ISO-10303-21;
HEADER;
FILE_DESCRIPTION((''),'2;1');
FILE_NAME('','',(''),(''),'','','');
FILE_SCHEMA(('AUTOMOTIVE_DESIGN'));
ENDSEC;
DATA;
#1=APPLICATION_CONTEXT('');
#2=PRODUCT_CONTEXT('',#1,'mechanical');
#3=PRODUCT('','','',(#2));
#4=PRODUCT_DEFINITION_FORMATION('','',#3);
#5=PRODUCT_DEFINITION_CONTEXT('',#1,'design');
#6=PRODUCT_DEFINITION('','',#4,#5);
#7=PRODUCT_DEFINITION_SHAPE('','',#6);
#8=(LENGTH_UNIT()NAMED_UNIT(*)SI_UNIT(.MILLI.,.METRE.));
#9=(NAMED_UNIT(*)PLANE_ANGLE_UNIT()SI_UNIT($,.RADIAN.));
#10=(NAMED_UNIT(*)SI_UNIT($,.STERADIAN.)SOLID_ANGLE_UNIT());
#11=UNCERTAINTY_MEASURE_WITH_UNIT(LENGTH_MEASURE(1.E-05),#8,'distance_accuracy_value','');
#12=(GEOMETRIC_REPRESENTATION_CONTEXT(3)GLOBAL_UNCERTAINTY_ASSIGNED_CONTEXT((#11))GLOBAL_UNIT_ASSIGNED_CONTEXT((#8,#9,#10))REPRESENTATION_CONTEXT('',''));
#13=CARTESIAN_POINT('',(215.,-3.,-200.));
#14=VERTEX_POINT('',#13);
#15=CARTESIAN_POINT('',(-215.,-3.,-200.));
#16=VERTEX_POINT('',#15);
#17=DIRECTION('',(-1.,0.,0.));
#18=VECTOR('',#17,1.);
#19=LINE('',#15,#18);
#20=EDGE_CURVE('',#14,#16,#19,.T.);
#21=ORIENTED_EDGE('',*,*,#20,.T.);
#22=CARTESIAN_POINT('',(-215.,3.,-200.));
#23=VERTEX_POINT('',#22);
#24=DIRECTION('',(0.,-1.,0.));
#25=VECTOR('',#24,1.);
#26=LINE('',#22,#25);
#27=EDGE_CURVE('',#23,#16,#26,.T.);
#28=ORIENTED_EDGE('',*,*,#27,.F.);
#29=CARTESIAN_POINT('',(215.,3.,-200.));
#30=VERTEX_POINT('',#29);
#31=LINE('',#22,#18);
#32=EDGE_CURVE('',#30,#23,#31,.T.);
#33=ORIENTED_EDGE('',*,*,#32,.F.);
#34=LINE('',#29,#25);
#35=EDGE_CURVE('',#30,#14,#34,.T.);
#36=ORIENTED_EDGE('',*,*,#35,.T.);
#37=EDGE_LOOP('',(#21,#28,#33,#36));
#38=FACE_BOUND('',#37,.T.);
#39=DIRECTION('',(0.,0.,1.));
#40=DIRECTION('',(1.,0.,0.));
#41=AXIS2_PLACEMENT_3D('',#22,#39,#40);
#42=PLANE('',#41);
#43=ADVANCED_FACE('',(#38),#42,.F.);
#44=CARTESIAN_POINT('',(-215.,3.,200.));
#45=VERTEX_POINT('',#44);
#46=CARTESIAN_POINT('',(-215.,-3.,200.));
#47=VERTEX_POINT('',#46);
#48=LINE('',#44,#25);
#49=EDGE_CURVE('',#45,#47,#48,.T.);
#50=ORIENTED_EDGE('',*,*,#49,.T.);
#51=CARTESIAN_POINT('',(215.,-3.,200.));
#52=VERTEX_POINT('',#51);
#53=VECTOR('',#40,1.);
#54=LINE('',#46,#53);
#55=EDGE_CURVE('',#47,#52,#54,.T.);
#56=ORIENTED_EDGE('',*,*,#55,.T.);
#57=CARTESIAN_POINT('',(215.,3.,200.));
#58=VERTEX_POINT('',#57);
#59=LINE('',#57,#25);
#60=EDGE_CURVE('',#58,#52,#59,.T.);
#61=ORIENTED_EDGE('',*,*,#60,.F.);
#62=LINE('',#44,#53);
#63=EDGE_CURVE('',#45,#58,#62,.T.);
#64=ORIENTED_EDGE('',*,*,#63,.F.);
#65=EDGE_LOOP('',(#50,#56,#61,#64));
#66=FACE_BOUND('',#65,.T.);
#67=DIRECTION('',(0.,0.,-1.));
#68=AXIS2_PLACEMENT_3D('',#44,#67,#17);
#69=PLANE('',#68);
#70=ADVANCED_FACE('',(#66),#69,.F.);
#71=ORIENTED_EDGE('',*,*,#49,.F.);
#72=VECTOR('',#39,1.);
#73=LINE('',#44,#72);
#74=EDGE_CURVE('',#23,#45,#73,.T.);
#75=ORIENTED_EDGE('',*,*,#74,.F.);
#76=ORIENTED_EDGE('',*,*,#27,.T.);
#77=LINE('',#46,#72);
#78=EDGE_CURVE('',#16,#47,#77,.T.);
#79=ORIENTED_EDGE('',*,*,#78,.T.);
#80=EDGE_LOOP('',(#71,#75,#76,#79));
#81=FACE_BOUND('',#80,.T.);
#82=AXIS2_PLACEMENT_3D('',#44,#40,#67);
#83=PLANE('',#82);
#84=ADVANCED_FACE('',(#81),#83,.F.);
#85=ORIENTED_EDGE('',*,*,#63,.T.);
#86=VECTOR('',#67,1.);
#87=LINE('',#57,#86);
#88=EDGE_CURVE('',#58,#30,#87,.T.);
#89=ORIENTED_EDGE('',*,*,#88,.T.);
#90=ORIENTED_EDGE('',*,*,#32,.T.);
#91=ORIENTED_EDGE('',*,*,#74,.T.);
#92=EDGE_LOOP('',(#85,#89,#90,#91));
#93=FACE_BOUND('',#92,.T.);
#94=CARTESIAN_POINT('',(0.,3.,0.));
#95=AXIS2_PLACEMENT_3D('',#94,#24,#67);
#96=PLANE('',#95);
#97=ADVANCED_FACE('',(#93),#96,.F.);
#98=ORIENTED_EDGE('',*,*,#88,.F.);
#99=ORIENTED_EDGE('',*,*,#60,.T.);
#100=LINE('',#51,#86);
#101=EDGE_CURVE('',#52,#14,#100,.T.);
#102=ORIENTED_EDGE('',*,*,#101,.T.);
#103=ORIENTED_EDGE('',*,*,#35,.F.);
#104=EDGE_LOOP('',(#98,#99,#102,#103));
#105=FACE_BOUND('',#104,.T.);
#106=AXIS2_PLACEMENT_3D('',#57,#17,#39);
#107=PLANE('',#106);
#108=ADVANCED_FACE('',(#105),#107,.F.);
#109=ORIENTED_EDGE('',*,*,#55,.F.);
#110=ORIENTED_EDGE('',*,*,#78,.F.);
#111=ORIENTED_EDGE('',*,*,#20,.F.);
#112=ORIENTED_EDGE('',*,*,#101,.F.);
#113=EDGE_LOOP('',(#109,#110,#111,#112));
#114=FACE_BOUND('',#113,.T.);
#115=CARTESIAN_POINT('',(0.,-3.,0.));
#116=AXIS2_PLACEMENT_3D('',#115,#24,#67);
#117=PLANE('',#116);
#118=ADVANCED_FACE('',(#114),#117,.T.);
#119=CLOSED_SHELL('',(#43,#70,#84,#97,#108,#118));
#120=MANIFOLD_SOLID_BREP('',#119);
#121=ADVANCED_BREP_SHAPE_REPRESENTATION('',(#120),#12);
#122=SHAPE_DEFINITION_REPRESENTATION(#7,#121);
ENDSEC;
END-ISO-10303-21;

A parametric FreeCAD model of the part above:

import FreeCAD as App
import Part
import Sketcher

doc = App.newDocument("Part")
body = doc.addObject("PartDesign::Body", "Body")

# Sketch on XZ plane
sketch1 = body.newObject("Sketcher::SketchObject", "Sketch")
sketch1.AttachmentSupport = (doc.getObject("XZ_Plane"), [""])
sketch1.MapMode = "FlatFace"
sketch1.addGeometry(Part.LineSegment(App.Vector(-215, -200, 0), App.Vector(-215, 200, 0)), False)
sketch1.addGeometry(Part.LineSegment(App.Vector(-215, 200, 0), App.Vector(215, 200, 0)), False)
sketch1.addGeometry(Part.LineSegment(App.Vector(215, 200, 0), App.Vector(215, -200, 0)), False)
sketch1.addGeometry(Part.LineSegment(App.Vector(215, -200, 0), App.Vector(-215, -200, 0)), False)
sketch1.addConstraint(Sketcher.Constraint("Coincident", 0, 2, 1, 1))
sketch1.addConstraint(Sketcher.Constraint("Coincident", 1, 2, 2, 1))
sketch1.addConstraint(Sketcher.Constraint("Coincident", 2, 2, 3, 1))
sketch1.addConstraint(Sketcher.Constraint("Coincident", 3, 2, 0, 1))
sketch1.addConstraint(Sketcher.Constraint("Vertical", 0))
sketch1.addConstraint(Sketcher.Constraint("Horizontal", 1))
sketch1.addConstraint(Sketcher.Constraint("Vertical", 2))
sketch1.addConstraint(Sketcher.Constraint("Horizontal", 3))
sketch1.addConstraint(Sketcher.Constraint("Symmetric", 0, 2, 2, 2, -1, 1))
sketch1.addConstraint(Sketcher.Constraint("DistanceX", 1, 1, 1, 2, 430.0))
sketch1.addConstraint(Sketcher.Constraint("DistanceY", 0, 1, 0, 2, 400.0))
pad1 = body.newObject("PartDesign::Pad", "Pad")
pad1.Profile = sketch1
pad1.Length = 6
pad1.Midplane = True

doc.recompute()
